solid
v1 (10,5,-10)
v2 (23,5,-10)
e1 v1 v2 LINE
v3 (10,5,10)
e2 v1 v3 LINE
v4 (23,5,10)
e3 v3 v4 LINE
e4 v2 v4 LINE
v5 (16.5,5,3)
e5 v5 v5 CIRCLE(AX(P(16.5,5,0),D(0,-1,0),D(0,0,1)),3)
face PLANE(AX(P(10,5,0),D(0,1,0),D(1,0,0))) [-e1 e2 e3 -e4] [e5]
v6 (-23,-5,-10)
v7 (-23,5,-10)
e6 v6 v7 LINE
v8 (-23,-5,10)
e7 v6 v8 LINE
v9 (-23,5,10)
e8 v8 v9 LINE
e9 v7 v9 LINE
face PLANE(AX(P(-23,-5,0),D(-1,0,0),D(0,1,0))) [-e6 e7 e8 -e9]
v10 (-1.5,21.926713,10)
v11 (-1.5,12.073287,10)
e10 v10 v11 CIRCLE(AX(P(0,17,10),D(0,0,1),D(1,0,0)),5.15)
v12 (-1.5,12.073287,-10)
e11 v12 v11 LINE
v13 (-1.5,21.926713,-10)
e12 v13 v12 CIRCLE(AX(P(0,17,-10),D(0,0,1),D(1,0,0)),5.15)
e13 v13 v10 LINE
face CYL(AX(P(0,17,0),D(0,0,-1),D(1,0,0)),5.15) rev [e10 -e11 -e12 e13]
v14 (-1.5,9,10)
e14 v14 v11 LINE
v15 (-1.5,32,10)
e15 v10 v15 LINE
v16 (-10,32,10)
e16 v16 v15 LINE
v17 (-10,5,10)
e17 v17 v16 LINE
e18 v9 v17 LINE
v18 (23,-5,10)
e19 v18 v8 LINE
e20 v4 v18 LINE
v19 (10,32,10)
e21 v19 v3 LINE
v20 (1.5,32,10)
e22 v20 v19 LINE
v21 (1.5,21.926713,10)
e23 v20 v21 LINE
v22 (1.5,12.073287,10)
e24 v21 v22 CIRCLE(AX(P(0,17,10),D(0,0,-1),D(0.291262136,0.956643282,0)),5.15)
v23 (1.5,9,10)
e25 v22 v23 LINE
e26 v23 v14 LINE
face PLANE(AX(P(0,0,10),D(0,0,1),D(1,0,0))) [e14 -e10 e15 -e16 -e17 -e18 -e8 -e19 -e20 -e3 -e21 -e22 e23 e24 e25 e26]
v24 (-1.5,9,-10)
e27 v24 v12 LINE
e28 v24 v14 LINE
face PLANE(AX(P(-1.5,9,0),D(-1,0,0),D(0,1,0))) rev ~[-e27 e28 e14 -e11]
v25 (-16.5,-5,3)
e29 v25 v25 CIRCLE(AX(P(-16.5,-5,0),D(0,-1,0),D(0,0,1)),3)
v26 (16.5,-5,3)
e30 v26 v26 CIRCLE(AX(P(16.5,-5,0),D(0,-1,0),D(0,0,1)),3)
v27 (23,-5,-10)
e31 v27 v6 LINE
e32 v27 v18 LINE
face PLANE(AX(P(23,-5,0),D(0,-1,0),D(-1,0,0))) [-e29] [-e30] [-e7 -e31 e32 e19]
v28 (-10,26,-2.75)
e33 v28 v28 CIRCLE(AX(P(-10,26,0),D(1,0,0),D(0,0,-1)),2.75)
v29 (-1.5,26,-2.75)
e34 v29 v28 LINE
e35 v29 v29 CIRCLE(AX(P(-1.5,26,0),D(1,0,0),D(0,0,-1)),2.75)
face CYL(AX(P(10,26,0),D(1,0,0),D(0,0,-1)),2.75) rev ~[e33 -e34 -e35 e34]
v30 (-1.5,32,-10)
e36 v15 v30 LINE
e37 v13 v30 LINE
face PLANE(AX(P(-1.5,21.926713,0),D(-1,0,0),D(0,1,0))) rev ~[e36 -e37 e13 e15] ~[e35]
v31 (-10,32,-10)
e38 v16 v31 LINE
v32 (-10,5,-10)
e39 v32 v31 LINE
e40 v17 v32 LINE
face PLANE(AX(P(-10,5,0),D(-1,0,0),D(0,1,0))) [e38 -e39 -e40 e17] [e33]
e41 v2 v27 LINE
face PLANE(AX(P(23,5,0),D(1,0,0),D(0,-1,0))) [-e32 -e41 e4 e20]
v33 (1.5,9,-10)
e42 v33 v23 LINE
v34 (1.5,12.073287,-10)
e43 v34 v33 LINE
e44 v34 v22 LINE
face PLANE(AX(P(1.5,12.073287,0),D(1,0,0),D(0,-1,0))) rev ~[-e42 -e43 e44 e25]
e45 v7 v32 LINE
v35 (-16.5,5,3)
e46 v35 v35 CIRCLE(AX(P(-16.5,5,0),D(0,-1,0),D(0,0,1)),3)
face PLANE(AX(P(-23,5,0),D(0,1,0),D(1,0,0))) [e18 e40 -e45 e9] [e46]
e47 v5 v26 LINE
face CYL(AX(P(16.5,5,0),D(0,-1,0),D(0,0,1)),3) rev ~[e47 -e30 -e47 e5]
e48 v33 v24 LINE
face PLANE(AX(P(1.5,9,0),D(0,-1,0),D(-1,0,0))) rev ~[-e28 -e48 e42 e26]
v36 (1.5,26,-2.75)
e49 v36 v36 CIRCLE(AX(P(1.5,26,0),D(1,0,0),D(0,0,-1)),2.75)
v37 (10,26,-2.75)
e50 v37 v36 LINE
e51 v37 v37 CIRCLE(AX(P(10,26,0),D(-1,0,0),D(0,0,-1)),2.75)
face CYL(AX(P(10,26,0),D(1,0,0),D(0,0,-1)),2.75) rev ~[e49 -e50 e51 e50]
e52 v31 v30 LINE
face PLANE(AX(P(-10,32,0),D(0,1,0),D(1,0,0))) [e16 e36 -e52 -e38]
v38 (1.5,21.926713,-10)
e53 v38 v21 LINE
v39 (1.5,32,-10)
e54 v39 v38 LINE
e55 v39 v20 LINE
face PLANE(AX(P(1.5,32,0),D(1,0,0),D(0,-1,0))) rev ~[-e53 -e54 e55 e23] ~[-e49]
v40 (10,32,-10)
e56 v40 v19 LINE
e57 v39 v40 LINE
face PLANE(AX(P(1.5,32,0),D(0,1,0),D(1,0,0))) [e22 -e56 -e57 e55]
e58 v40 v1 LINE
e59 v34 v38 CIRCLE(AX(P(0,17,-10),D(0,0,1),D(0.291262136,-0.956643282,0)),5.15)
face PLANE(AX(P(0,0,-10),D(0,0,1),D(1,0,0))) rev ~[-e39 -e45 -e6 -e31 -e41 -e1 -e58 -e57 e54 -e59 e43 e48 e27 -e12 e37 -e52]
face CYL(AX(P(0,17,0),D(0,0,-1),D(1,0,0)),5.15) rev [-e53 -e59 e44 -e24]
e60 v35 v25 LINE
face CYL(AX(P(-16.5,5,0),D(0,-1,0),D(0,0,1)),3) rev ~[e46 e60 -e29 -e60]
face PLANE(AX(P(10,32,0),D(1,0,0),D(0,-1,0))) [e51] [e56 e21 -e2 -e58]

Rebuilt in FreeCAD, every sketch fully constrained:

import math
import FreeCAD as App
import Part
import Sketcher
from FreeCAD import Vector

doc = App.newDocument("Part")
body = doc.addObject("PartDesign::Body", "Body")

# Sketch on XY plane
sketch1 = body.newObject("Sketcher::SketchObject", "Sketch")
sketch1.AttachmentSupport = (doc.getObject("XY_Plane"), [""])
sketch1.MapMode = "FlatFace"
sketch1.addGeometry([
    Part.LineSegment(Vector(-10, 5, 0), Vector(-23, 5, 0)),  # 0
    Part.LineSegment(Vector(-23, 5, 0), Vector(-23, -5, 0)),  # 1
    Part.LineSegment(Vector(-23, -5, 0), Vector(23, -5, 0)),  # 2
    Part.LineSegment(Vector(23, -5, 0), Vector(23, 5, 0)),  # 3
    Part.LineSegment(Vector(23, 5, 0), Vector(10, 5, 0)),  # 4
    Part.LineSegment(Vector(10, 5, 0), Vector(10, 32, 0)),  # 5
    Part.LineSegment(Vector(10, 32, 0), Vector(1.5, 32, 0)),  # 6
    Part.LineSegment(Vector(1.5, 32, 0), Vector(1.5, 21.926713, 0)),  # 7
    Part.ArcOfCircle(Part.Circle(Vector(0, 17, 0), Vector(0, 0, 1), 5.15), math.radians(-73.066467), math.radians(73.066467)),  # 8
    Part.LineSegment(Vector(1.5, 12.073287, 0), Vector(1.5, 9, 0)),  # 9
    Part.LineSegment(Vector(1.5, 9, 0), Vector(-1.5, 9, 0)),  # 10
    Part.LineSegment(Vector(-1.5, 9, 0), Vector(-1.5, 12.073287, 0)),  # 11
    Part.ArcOfCircle(Part.Circle(Vector(0, 17, 0), Vector(0, 0, 1), 5.15), math.radians(106.933533), math.radians(253.066467)),  # 12
    Part.LineSegment(Vector(-1.5, 21.926713, 0), Vector(-1.5, 32, 0)),  # 13
    Part.LineSegment(Vector(-1.5, 32, 0), Vector(-10, 32, 0)),  # 14
    Part.LineSegment(Vector(-10, 32, 0), Vector(-10, 5, 0)),  # 15
], False)
sketch1.addConstraint([
    Sketcher.Constraint("Coincident", 0, 2, 1, 1),
    Sketcher.Constraint("Coincident", 1, 2, 2, 1),
    Sketcher.Constraint("Coincident", 2, 2, 3, 1),
    Sketcher.Constraint("Coincident", 3, 2, 4, 1),
    Sketcher.Constraint("Coincident", 4, 2, 5, 1),
    Sketcher.Constraint("Coincident", 5, 2, 6, 1),
    Sketcher.Constraint("Coincident", 6, 2, 7, 1),
    Sketcher.Constraint("Coincident", 7, 2, 8, 2),
    Sketcher.Constraint("Coincident", 8, 1, 9, 1),
    Sketcher.Constraint("Coincident", 9, 2, 10, 1),
    Sketcher.Constraint("Coincident", 10, 2, 11, 1),
    Sketcher.Constraint("Coincident", 11, 2, 12, 2),
    Sketcher.Constraint("Coincident", 12, 1, 13, 1),
    Sketcher.Constraint("Coincident", 13, 2, 14, 1),
    Sketcher.Constraint("Coincident", 14, 2, 15, 1),
    Sketcher.Constraint("Coincident", 15, 2, 0, 1),
    Sketcher.Constraint("Horizontal", 0),
    Sketcher.Constraint("Vertical", 1),
    Sketcher.Constraint("Horizontal", 2),
    Sketcher.Constraint("Vertical", 3),
    Sketcher.Constraint("Horizontal", 4),
    Sketcher.Constraint("Vertical", 5),
    Sketcher.Constraint("Horizontal", 6),
    Sketcher.Constraint("Vertical", 7),
    Sketcher.Constraint("Vertical", 9),
    Sketcher.Constraint("Horizontal", 10),
    Sketcher.Constraint("Vertical", 11),
    Sketcher.Constraint("Vertical", 13),
    Sketcher.Constraint("Horizontal", 14),
    Sketcher.Constraint("Vertical", 15),
    Sketcher.Constraint("Coincident", 12, 3, 8, 3),
    Sketcher.Constraint("Equal", 8, 12),
    Sketcher.Constraint("Symmetric", 0, 2, 2, 2, -1, 1),
    Sketcher.Constraint("Symmetric", 8, 1, 11, 2, -2),
    Sketcher.Constraint("Symmetric", 6, 2, 13, 2, -2),
    Sketcher.Constraint("Symmetric", 4, 2, 15, 2, -2),
    Sketcher.Constraint("Vertical", 7, 2, 8, 1),
    Sketcher.Constraint("DistanceX", 0, 2, 0, 1, 13.0),
    Sketcher.Constraint("DistanceX", 10, 2, 10, 1, 3.0),
    Sketcher.Constraint("DistanceY", 1, 2, 1, 1, 10.0),
    Sketcher.Constraint("Radius", 8, 5.15),
    Sketcher.Constraint("DistanceX", -1, 1, 4, 2, 10.0),
    Sketcher.Constraint("DistanceY", 0, 2, 8, 3, 12.0),
    Sketcher.Constraint("DistanceY", 8, 3, 5, 2, 15.0),
    Sketcher.Constraint("DistanceY", 9, 2, 8, 3, 8.0),
])
pad1 = body.newObject("PartDesign::Pad", "Pad")
pad1.Profile = sketch1
pad1.Length = 20
pad1.Midplane = True

# Sketch on XZ plane
sketch2 = body.newObject("Sketcher::SketchObject", "Sketch001")
sketch2.AttachmentSupport = (doc.getObject("XZ_Plane"), [""])
sketch2.MapMode = "FlatFace"
sketch2.AttachmentOffset = App.Placement(Vector(0, 0, -5), App.Rotation())
sketch2.addGeometry([
    Part.Circle(Vector(-16.5, 0, 0), Vector(0, 0, 1), 3),
    Part.Circle(Vector(16.5, 0, 0), Vector(0, 0, 1), 3),
], False)
sketch2.addConstraint([
    Sketcher.Constraint("Equal", 0, 1),
    Sketcher.Constraint("Symmetric", 0, 3, 1, 3, -1, 1),
    Sketcher.Constraint("PointOnObject", 0, 3, -1),
    Sketcher.Constraint("Diameter", 0, 6.0),
    Sketcher.Constraint("DistanceX", 0, 3, 1, 3, 33.0),
])
doc.recompute()
hole = body.newObject("PartDesign::Hole", "Hole")
hole.Profile = sketch2
hole.ThreadType = "None"
hole.Diameter = 6
hole.DepthType = "ThroughAll"
hole.Reversed = True

# Sketch on YZ plane
sketch3 = body.newObject("Sketcher::SketchObject", "Sketch002")
sketch3.AttachmentSupport = (doc.getObject("YZ_Plane"), [""])
sketch3.MapMode = "FlatFace"
sketch3.AttachmentOffset = App.Placement(Vector(0, 0, 10), App.Rotation())
sketch3.addGeometry(Part.Circle(Vector(26, 0, 0), Vector(0, 0, 1), 2.75), False)
sketch3.addConstraint([
    Sketcher.Constraint("PointOnObject", 0, 3, -1),
    Sketcher.Constraint("Diameter", 0, 5.5),
    Sketcher.Constraint("DistanceX", -1, 1, 0, 3, 26.0),
])
pocket1 = body.newObject("PartDesign::Pocket", "Pocket")
pocket1.Profile = sketch3
pocket1.Type = "ThroughAll"

doc.recompute()
